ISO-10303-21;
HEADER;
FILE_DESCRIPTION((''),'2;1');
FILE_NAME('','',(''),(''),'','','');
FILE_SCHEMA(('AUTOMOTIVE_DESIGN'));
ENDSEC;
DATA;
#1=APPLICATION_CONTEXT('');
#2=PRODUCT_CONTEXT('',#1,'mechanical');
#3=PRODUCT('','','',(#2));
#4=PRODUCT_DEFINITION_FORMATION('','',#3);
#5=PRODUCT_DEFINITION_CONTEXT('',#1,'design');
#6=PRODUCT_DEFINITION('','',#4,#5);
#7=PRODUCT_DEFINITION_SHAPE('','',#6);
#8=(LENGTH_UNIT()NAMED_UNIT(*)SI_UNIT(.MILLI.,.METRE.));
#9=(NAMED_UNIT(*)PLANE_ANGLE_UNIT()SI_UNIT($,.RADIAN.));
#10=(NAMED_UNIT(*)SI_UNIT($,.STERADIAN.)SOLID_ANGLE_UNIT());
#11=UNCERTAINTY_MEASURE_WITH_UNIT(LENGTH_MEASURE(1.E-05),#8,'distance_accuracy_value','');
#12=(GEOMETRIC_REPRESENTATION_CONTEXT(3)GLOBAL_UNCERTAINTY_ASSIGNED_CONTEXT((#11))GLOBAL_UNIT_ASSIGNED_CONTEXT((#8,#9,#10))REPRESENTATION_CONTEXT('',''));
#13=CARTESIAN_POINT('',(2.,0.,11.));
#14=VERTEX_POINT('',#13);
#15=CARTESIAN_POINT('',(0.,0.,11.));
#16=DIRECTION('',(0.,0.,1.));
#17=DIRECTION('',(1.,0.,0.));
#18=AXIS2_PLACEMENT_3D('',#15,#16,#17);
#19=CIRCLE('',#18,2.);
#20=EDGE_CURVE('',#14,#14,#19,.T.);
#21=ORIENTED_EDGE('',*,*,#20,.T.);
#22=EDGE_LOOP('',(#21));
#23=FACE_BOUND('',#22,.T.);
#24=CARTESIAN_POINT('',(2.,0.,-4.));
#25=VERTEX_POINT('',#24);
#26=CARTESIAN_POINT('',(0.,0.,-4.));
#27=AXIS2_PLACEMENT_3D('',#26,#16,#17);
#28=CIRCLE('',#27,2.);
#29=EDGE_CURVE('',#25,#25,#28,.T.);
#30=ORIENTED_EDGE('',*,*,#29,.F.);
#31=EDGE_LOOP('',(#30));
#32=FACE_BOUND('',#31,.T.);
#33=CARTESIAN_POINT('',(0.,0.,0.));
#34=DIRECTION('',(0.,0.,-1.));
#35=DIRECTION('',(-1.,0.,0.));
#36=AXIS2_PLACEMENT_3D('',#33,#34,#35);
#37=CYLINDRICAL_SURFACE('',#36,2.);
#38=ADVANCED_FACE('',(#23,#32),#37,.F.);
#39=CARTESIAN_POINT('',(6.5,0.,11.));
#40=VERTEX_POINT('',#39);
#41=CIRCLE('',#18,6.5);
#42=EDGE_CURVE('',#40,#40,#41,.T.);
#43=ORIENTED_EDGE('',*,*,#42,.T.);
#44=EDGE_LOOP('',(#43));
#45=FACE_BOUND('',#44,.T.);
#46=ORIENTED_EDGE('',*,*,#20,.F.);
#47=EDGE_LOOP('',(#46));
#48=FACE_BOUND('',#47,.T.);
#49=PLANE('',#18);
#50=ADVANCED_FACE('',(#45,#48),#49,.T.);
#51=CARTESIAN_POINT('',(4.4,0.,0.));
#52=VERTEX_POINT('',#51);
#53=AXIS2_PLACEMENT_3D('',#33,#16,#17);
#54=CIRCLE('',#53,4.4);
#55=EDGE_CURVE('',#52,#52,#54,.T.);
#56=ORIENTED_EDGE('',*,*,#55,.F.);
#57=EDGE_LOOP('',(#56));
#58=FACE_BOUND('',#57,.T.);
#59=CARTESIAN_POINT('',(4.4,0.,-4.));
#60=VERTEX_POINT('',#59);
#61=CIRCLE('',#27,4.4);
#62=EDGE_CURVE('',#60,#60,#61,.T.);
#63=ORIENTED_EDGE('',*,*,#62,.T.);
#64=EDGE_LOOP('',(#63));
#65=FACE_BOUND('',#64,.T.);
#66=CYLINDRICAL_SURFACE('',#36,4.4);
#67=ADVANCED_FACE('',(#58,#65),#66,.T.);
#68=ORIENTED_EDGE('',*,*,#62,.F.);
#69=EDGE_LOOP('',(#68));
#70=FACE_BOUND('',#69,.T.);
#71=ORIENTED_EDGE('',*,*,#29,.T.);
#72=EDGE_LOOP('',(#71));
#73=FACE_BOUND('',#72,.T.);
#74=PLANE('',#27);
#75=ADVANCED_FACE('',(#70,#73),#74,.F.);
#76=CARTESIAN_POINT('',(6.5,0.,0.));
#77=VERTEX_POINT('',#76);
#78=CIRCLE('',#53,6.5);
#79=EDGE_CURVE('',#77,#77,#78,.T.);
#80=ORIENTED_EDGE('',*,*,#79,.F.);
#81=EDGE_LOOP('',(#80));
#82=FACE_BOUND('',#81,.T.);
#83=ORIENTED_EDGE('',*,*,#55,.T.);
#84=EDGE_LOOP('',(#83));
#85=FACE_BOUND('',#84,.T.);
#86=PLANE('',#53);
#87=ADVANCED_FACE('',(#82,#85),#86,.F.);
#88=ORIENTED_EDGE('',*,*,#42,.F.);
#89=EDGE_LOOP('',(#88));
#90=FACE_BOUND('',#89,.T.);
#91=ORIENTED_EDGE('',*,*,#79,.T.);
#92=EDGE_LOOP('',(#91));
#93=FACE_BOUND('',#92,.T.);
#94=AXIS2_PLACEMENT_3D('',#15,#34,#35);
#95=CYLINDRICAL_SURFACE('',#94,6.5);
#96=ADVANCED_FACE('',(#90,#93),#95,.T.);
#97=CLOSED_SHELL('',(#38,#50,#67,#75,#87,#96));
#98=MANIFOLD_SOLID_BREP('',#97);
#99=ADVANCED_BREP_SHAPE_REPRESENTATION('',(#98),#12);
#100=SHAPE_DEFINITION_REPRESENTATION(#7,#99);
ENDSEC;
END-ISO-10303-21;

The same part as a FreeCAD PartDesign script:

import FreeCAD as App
import Part
import Sketcher

doc = App.newDocument("Part")
params = doc.addObject("Spreadsheet::Sheet", "Params")
for row, (alias, value) in enumerate([
    ("sketch1_diameter", "4 mm"),
    ("sketch1_diameter2", "8.8 mm"),
    ("pad1_length", "4 mm"),
    ("sketch2_diameter", "13 mm"),
    ("sketch2_diameter2", "4 mm"),
    ("pad2_length", "11 mm"),
], start=1):
    params.set(f"A{row}", alias)
    params.set(f"B{row}", "=" + value)
    params.setAlias(f"B{row}", alias)

body = doc.addObject("PartDesign::Body", "Body")

# Sketch on XY plane
sketch1 = body.newObject("Sketcher::SketchObject", "Sketch")
sketch1.AttachmentSupport = (doc.getObject("XY_Plane"), [""])
sketch1.MapMode = "FlatFace"
sketch1.AttachmentOffset = App.Placement(App.Vector(0, 0, -4), App.Rotation())
sketch1.addGeometry(Part.Circle(App.Vector(0, 0, 0), App.Vector(0, 0, 1), 4.4), False)
sketch1.addGeometry(Part.Circle(App.Vector(0, 0, 0), App.Vector(0, 0, 1), 2), False)
sketch1.addConstraint(Sketcher.Constraint("Coincident", 0, 3, -1, 1))
sketch1.addConstraint(Sketcher.Constraint("Coincident", 1, 3, -1, 1))
sketch1.addConstraint(Sketcher.Constraint("Diameter", 1, 4.0))
sketch1.addConstraint(Sketcher.Constraint("Diameter", 0, 8.8))
sketch1.setExpression("Constraints[2]", "Params.sketch1_diameter")
sketch1.setExpression("Constraints[3]", "Params.sketch1_diameter2")
pad1 = body.newObject("PartDesign::Pad", "Pad")
pad1.Profile = sketch1
pad1.setExpression("Length", "Params.pad1_length")

# Sketch on XY plane
sketch2 = body.newObject("Sketcher::SketchObject", "Sketch001")
sketch2.AttachmentSupport = (doc.getObject("XY_Plane"), [""])
sketch2.MapMode = "FlatFace"
sketch2.addGeometry(Part.Circle(App.Vector(0, 0, 0), App.Vector(0, 0, 1), 6.5), False)
sketch2.addGeometry(Part.Circle(App.Vector(0, 0, 0), App.Vector(0, 0, 1), 2), False)
sketch2.addConstraint(Sketcher.Constraint("Coincident", 0, 3, -1, 1))
sketch2.addConstraint(Sketcher.Constraint("Coincident", 1, 3, -1, 1))
sketch2.addConstraint(Sketcher.Constraint("Diameter", 0, 13.0))
sketch2.addConstraint(Sketcher.Constraint("Diameter", 1, 4.0))
sketch2.setExpression("Constraints[2]", "Params.sketch2_diameter")
sketch2.setExpression("Constraints[3]", "Params.sketch2_diameter2")
pad2 = body.newObject("PartDesign::Pad", "Pad001")
pad2.Profile = sketch2
pad2.setExpression("Length", "Params.pad2_length")

doc.recompute()
